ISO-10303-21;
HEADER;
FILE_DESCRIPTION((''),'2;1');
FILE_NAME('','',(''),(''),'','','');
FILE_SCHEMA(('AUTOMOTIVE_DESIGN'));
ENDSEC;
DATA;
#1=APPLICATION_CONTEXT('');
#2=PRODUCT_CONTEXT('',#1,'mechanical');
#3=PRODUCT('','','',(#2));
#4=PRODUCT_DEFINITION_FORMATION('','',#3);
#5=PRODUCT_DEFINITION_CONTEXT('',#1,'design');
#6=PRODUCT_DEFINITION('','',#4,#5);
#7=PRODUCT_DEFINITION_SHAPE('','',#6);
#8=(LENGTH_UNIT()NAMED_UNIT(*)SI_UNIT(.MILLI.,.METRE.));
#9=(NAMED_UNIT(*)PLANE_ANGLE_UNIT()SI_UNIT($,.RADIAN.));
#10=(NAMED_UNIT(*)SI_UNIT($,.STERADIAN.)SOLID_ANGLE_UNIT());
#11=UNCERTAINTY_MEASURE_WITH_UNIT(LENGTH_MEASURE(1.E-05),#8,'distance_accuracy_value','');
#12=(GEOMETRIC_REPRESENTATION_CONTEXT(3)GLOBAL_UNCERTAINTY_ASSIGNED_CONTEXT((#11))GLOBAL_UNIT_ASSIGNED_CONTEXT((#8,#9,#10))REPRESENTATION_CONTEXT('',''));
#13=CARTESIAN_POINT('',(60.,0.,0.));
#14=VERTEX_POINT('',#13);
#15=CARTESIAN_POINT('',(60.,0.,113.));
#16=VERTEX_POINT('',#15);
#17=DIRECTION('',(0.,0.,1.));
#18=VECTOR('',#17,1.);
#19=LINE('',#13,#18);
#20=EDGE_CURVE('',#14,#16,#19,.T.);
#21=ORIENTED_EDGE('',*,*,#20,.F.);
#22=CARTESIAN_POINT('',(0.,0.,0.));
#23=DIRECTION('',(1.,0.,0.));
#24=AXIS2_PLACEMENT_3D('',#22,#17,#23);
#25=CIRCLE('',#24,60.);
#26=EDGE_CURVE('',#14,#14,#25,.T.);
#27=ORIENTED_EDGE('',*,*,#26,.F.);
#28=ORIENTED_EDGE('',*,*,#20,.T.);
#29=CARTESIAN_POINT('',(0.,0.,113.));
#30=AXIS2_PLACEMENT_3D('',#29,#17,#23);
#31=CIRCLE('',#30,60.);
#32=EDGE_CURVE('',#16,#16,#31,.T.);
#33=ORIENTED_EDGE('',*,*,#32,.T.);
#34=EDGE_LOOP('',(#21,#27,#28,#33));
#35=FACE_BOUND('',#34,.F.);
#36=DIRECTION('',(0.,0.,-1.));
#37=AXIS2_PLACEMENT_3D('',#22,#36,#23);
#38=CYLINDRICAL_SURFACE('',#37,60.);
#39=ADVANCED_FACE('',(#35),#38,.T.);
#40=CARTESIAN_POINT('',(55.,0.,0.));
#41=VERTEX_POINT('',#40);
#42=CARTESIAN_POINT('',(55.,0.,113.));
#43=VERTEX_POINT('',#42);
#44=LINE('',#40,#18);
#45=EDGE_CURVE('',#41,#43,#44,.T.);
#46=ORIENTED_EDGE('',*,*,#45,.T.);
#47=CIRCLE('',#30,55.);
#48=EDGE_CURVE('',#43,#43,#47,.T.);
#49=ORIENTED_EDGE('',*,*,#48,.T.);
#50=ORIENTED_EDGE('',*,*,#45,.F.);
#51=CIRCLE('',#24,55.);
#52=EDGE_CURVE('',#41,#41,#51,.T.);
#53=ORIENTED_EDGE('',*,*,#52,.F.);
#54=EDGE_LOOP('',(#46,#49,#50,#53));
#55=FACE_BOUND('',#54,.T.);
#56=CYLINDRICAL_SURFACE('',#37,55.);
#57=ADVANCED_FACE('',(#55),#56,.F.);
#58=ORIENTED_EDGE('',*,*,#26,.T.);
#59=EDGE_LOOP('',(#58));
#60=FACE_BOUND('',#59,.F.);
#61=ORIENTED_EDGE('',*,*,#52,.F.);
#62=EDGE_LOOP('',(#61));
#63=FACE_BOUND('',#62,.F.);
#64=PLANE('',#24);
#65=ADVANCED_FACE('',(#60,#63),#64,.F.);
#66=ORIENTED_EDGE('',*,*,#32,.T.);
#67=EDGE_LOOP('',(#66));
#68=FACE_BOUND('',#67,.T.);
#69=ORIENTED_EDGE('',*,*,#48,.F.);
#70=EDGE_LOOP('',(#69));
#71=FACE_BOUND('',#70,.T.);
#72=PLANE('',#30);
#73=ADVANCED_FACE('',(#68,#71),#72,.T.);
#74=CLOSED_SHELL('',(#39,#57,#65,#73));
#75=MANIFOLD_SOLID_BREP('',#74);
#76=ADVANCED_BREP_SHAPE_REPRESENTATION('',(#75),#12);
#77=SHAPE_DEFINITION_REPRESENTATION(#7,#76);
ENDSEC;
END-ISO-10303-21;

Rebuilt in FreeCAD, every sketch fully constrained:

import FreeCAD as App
import Part
import Sketcher
from FreeCAD import Vector
Q = App.Units.Quantity

doc = App.newDocument("Part")
body = doc.addObject("PartDesign::Body", "Body")

# Sketch on XY plane
sketch1 = doc.addObject("Sketcher::SketchObject", "Sketch")
body.addObject(sketch1)
sketch1.AttachmentSupport = (doc.XY_Plane, [""])
sketch1.MapMode = "FlatFace"
sketch1.addGeometry([
    Part.Circle(Vector(0, 0, 0), Vector(0, 0, 1), 60),
    Part.Circle(Vector(0, 0, 0), Vector(0, 0, 1), 55),
], False)
sketch1.addConstraint([
    Sketcher.Constraint("Coincident", 0, 3, -1, 1),
    Sketcher.Constraint("Coincident", 1, 3, -1, 1),
    Sketcher.Constraint("Diameter", 0, Q("120 mm")),
    Sketcher.Constraint("Diameter", 1, Q("110 mm")),
])
pad1 = doc.addObject("PartDesign::Pad", "Pad")
body.addObject(pad1)
pad1.Profile = sketch1
pad1.Length = 113

doc.recompute()
